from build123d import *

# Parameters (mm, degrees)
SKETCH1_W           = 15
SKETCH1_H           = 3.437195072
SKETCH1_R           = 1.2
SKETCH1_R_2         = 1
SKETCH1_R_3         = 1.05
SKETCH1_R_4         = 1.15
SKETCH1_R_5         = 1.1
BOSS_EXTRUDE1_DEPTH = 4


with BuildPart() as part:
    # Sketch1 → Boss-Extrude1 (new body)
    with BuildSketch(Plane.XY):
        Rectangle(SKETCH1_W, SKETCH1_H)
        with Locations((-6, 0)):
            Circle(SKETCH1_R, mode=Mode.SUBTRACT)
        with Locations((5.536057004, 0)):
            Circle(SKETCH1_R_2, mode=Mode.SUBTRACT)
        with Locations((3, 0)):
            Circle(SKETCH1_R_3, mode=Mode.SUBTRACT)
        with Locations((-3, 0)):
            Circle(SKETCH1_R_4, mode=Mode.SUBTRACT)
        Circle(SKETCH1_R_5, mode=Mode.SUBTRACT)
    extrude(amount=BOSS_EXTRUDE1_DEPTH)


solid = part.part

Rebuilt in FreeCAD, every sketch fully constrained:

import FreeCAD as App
import Part
import Sketcher
from FreeCAD import Vector
Q = App.Units.Quantity


def add_polygon(sketch, points):
    """Adds a closed chain of lines whose ends are joined by coincident constraints."""
    first, n = sketch.GeometryCount, len(points)
    for a, b in zip(points, points[1:] + points[:1]):
        sketch.addGeometry(Part.LineSegment(App.Vector(*a, 0), App.Vector(*b, 0)), False)
    for i in range(n):
        sketch.addConstraint(Sketcher.Constraint("Coincident", first + i, 2, first + (i + 1) % n, 1))

doc = App.newDocument("Part")
body = doc.addObject("PartDesign::Body", "Body")

sketch1 = body.newObject("Sketcher::SketchObject", "Sketch")
sketch1.AttachmentSupport = (doc.getObject("XY_Plane"), [""])
sketch1.MapMode = "FlatFace"
add_polygon(sketch1, [(-7.5, 1.7), (-7.5, -1.7), (7.5, -1.7), (7.5, 1.7)])
sketch1.addGeometry(Part.Circle(Vector(-6, 0, 0), Vector(0, 0, 1), 1.2), False)
sketch1.addGeometry(Part.Circle(Vector(-3, 0, 0), Vector(0, 0, 1), 1.1), False)
sketch1.addGeometry(Part.Circle(Vector(0, 0, 0), Vector(0, 0, 1), 1.1), False)
sketch1.addGeometry(Part.Circle(Vector(3, 0, 0), Vector(0, 0, 1), 1.1), False)
sketch1.addGeometry(Part.Circle(Vector(5.5, 0, 0), Vector(0, 0, 1), 1), False)
sketch1.addConstraint(Sketcher.Constraint("Vertical", 0))
sketch1.addConstraint(Sketcher.Constraint("Horizontal", 1))
sketch1.addConstraint(Sketcher.Constraint("Vertical", 2))
sketch1.addConstraint(Sketcher.Constraint("Horizontal", 3))
sketch1.addConstraint(Sketcher.Constraint("Coincident", 6, 3, -1, 1))
sketch1.addConstraint(Sketcher.Constraint("Symmetric", 5, 3, 7, 3, -1, 1))
sketch1.addConstraint(Sketcher.Constraint("Symmetric", 0, 2, 2, 2, -1, 1))
sketch1.addConstraint(Sketcher.Constraint("PointOnObject", 4, 3, -1))
sketch1.addConstraint(Sketcher.Constraint("PointOnObject", 5, 3, -1))
sketch1.addConstraint(Sketcher.Constraint("PointOnObject", 8, 3, -1))
sketch1.addConstraint(Sketcher.Constraint("Diameter", 8, Q("2 mm")))
sketch1.addConstraint(Sketcher.Constraint("Diameter", 4, Q("2.4 mm")))
sketch1.addConstraint(Sketcher.Constraint("Diameter", 5, Q("2.3 mm")))
sketch1.addConstraint(Sketcher.Constraint("Diameter", 6, Q("2.2 mm")))
sketch1.addConstraint(Sketcher.Constraint("Diameter", 7, Q("2.1 mm")))
sketch1.addConstraint(Sketcher.Constraint("DistanceX", 1, 1, 1, 2, Q("15 mm")))
sketch1.addConstraint(Sketcher.Constraint("DistanceX", 4, 3, -1, 1, Q("6 mm")))
sketch1.addConstraint(Sketcher.Constraint("DistanceX", 5, 3, -1, 1, Q("3 mm")))
sketch1.addConstraint(Sketcher.Constraint("DistanceY", 0, 2, 0, 1, Q("3.437195 mm")))
sketch1.addConstraint(Sketcher.Constraint("DistanceX", -1, 1, 8, 3, Q("5.536057 mm")))
pad1 = body.newObject("PartDesign::Pad", "Pad")
pad1.Profile = sketch1
pad1.Length = 4

doc.recompute()
